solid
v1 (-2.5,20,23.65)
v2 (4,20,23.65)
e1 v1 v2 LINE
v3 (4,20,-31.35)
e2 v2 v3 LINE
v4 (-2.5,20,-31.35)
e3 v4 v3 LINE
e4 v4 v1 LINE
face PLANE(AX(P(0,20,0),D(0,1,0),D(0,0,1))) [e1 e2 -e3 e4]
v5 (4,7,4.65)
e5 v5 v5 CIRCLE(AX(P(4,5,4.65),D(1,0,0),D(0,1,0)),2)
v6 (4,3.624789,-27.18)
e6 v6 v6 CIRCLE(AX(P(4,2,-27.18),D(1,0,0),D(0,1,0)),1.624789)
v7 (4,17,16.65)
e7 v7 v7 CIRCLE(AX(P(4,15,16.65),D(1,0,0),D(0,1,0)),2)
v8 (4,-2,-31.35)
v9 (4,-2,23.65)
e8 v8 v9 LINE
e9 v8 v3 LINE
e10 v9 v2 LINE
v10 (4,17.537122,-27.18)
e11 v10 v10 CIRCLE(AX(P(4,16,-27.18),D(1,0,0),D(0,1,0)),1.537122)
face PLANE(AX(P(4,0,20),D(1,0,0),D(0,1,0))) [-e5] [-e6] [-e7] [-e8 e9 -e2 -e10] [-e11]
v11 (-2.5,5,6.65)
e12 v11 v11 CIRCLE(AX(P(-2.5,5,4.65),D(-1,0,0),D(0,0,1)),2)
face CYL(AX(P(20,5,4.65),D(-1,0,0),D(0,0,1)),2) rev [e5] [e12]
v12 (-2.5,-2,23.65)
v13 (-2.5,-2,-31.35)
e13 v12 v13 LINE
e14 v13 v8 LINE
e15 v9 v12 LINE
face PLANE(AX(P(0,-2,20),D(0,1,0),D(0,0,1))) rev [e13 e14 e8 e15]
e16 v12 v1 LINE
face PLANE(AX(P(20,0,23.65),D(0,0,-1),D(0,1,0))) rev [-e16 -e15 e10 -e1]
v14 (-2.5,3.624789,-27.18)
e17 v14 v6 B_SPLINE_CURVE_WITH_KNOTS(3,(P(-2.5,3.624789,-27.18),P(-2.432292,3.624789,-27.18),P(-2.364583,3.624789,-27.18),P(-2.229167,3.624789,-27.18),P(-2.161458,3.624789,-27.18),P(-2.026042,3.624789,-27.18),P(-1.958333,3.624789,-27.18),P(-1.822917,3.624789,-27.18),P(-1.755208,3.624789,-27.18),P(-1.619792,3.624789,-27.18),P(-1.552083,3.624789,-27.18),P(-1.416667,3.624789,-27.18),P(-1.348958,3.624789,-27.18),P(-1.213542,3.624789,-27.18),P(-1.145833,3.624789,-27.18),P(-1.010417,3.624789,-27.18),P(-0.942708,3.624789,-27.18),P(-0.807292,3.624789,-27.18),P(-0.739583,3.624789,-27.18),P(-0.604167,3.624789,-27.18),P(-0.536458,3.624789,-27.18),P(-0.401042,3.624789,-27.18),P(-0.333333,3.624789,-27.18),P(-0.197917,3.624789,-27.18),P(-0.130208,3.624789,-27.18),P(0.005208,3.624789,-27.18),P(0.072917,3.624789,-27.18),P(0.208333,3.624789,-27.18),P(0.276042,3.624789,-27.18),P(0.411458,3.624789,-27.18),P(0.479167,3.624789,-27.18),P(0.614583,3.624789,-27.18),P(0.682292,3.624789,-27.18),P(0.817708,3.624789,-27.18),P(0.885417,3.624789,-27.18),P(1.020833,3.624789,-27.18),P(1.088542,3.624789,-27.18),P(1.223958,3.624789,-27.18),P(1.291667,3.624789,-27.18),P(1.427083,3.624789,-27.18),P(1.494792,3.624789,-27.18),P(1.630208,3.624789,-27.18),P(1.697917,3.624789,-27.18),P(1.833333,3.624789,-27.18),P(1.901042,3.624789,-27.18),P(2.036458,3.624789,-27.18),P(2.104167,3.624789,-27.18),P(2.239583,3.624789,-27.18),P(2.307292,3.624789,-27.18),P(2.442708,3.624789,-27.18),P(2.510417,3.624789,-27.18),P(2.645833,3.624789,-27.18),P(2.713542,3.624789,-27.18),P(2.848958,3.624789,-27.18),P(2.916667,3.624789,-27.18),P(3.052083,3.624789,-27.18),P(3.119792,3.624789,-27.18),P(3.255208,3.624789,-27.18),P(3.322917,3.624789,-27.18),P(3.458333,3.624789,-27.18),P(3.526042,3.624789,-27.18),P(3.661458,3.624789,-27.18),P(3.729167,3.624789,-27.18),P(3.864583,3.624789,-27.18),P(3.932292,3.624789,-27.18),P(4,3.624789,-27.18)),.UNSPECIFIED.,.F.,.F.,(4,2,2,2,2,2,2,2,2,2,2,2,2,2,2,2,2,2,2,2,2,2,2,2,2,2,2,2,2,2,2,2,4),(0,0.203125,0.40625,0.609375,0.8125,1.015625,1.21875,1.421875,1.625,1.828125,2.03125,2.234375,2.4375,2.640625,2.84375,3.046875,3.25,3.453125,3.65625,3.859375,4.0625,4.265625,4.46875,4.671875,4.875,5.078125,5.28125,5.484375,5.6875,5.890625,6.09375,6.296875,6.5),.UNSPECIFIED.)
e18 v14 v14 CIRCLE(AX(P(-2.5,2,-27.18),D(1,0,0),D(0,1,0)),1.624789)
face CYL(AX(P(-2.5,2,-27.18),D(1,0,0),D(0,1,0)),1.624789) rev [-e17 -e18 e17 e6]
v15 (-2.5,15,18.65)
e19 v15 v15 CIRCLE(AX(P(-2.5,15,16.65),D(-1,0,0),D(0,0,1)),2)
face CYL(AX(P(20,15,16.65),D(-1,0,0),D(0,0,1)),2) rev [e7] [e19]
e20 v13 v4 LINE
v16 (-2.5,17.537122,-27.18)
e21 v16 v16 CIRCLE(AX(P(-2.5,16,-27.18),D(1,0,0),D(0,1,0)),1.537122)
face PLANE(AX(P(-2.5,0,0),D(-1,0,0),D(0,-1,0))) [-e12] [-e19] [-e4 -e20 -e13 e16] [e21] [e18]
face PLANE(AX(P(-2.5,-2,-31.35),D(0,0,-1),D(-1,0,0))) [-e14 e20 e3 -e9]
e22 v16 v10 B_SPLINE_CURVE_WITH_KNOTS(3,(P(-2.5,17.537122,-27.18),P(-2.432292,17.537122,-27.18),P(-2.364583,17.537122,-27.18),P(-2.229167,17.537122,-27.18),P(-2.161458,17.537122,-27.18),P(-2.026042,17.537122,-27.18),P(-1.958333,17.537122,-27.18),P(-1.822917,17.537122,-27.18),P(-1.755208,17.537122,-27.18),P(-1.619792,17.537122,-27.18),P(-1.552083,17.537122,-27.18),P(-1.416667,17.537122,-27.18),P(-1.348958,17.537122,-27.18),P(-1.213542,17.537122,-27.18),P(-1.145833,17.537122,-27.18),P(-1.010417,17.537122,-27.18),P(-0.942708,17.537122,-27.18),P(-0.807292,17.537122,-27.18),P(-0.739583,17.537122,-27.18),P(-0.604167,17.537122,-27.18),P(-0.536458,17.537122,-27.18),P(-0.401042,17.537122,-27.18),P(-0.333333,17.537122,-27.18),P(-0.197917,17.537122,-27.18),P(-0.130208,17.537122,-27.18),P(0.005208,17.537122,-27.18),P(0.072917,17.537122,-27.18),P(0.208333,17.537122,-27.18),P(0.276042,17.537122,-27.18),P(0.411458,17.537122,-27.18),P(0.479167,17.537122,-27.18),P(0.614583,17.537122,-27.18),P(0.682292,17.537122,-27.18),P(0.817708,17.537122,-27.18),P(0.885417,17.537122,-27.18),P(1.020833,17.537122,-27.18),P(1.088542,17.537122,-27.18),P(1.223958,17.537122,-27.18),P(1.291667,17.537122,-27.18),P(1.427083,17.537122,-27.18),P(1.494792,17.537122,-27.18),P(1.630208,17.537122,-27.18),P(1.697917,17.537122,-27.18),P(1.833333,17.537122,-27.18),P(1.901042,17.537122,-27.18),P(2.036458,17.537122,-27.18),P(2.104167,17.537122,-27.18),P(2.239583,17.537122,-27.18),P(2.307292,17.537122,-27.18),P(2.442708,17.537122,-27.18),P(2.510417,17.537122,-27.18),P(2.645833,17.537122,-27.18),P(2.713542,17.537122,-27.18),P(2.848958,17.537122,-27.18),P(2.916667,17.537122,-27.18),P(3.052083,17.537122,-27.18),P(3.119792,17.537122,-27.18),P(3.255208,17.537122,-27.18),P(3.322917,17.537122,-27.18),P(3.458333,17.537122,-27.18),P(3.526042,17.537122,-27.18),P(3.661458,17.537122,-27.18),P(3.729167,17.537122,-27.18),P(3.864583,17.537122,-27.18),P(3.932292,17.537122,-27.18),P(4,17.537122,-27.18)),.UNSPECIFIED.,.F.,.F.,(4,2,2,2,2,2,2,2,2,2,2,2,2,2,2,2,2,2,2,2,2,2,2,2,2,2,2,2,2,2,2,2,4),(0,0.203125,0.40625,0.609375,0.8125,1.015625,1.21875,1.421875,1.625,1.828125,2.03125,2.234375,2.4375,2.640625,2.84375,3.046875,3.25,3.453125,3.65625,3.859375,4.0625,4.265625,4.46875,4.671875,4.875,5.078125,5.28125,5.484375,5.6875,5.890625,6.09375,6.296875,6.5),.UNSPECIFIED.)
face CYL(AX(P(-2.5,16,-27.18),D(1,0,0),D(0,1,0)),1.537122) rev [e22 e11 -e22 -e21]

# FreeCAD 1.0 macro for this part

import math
import FreeCAD as App
import Part
import Sketcher
Q = App.Units.Quantity

doc = App.newDocument("Part")
body = doc.addObject("PartDesign::Body", "Body")

sketch1 = doc.addObject("Sketcher::SketchObject", "Sketch")
body.addObject(sketch1)
sketch1.AttachmentSupport = (doc.XY_Plane, [""])
sketch1.MapMode = "FlatFace"
sketch1.addGeometry(Part.LineSegment(App.Vector(0, 16, 0), App.Vector(0, -2, 0)), False)
sketch1.addGeometry(Part.LineSegment(App.Vector(0, -2, 0), App.Vector(20.2, -2, 0)), False)
sketch1.addGeometry(Part.LineSegment(App.Vector(20.2, -2, 0), App.Vector(20.2, -24, 0)), False)
sketch1.addGeometry(Part.LineSegment(App.Vector(20.2, -24, 0), App.Vector(24.2, -24, 0)), False)
sketch1.addGeometry(Part.LineSegment(App.Vector(24.2, -24, 0), App.Vector(24.2, 2, 0)), False)
sketch1.addGeometry(Part.LineSegment(App.Vector(24.2, 2, 0), App.Vector(4, 2, 0)), False)
sketch1.addGeometry(Part.LineSegment(App.Vector(4, 2, 0), App.Vector(4, 16, 0)), False)
sketch1.addGeometry(Part.LineSegment(App.Vector(4, 16, 0), App.Vector(0, 16, 0)), False)
sketch1.addConstraint(Sketcher.Constraint("Coincident", 0, 2, 1, 1))
sketch1.addConstraint(Sketcher.Constraint("Coincident", 1, 2, 2, 1))
sketch1.addConstraint(Sketcher.Constraint("Coincident", 2, 2, 3, 1))
sketch1.addConstraint(Sketcher.Constraint("Coincident", 3, 2, 4, 1))
sketch1.addConstraint(Sketcher.Constraint("Coincident", 4, 2, 5, 1))
sketch1.addConstraint(Sketcher.Constraint("Coincident", 5, 2, 6, 1))
sketch1.addConstraint(Sketcher.Constraint("Coincident", 6, 2, 7, 1))
sketch1.addConstraint(Sketcher.Constraint("Coincident", 7, 2, 0, 1))
sketch1.addConstraint(Sketcher.Constraint("Vertical", 0))
sketch1.addConstraint(Sketcher.Constraint("Horizontal", 1))
sketch1.addConstraint(Sketcher.Constraint("Vertical", 2))
sketch1.addConstraint(Sketcher.Constraint("Horizontal", 3))
sketch1.addConstraint(Sketcher.Constraint("Vertical", 4))
sketch1.addConstraint(Sketcher.Constraint("Horizontal", 5))
sketch1.addConstraint(Sketcher.Constraint("Vertical", 6))
sketch1.addConstraint(Sketcher.Constraint("Horizontal", 7))
sketch1.addConstraint(Sketcher.Constraint("PointOnObject", 0, 2, -2))
sketch1.addConstraint(Sketcher.Constraint("Equal", 1, 5))
sketch1.addConstraint(Sketcher.Constraint("DistanceX", 3, 1, 3, 2, Q("4 mm")))
sketch1.addConstraint(Sketcher.Constraint("DistanceY", 0, 2, 0, 1, Q("18 mm")))
sketch1.addConstraint(Sketcher.Constraint("DistanceY", 2, 2, 2, 1, Q("22 mm")))
sketch1.addConstraint(Sketcher.Constraint("DistanceY", 4, 1, 4, 2, Q("26 mm")))
sketch1.addConstraint(Sketcher.Constraint("DistanceY", 0, 2, -1, 1, Q("2 mm")))
sketch1.addConstraint(Sketcher.Constraint("DistanceX", 1, 1, 1, 2, Q("20.25 mm")))
pad1 = doc.addObject("PartDesign::Pad", "Pad")
body.addObject(pad1)
pad1.Profile = sketch1
pad1.Length = 20

sketch2 = doc.addObject("Sketcher::SketchObject", "Sketch001")
body.addObject(sketch2)
sketch2.AttachmentSupport = (doc.XY_Plane, [""])
sketch2.MapMode = "FlatFace"
sketch2.addGeometry(Part.LineSegment(App.Vector(4, 16, 0), App.Vector(4, -2, 0)), False)
sketch2.addGeometry(Part.LineSegment(App.Vector(4, -2, 0), App.Vector(0, -2, 0)), False)
sketch2.addGeometry(Part.LineSegment(App.Vector(0, -2, 0), App.Vector(0, 16, 0)), False)
sketch2.addGeometry(Part.LineSegment(App.Vector(0, 16, 0), App.Vector(4, 16, 0)), False)
sketch2.addConstraint(Sketcher.Constraint("Coincident", 0, 2, 1, 1))
sketch2.addConstraint(Sketcher.Constraint("Coincident", 1, 2, 2, 1))
sketch2.addConstraint(Sketcher.Constraint("Coincident", 2, 2, 3, 1))
sketch2.addConstraint(Sketcher.Constraint("Coincident", 3, 2, 0, 1))
sketch2.addConstraint(Sketcher.Constraint("Vertical", 0))
sketch2.addConstraint(Sketcher.Constraint("Horizontal", 1))
sketch2.addConstraint(Sketcher.Constraint("Vertical", 2))
sketch2.addConstraint(Sketcher.Constraint("Horizontal", 3))
sketch2.addConstraint(Sketcher.Constraint("PointOnObject", 1, 2, -2))
sketch2.addConstraint(Sketcher.Constraint("DistanceX", 1, 2, 1, 1, Q("4 mm")))
sketch2.addConstraint(Sketcher.Constraint("DistanceY", 0, 2, 0, 1, Q("18 mm")))
sketch2.addConstraint(Sketcher.Constraint("DistanceY", 0, 2, -1, 1, Q("2 mm")))
pad2 = doc.addObject("PartDesign::Pad", "Pad001")
body.addObject(pad2)
pad2.Profile = sketch2
pad2.Length = 20
pad2.Reversed = True

sketch3 = doc.addObject("Sketcher::SketchObject", "Sketch002")
body.addObject(sketch3)
sketch3.AttachmentSupport = (doc.XY_Plane, [""])
sketch3.MapMode = "FlatFace"
sketch3.AttachmentOffset = App.Placement(App.Vector(0, 0, 20), App.Rotation())
sketch3.addGeometry(Part.LineSegment(App.Vector(0, 16, 0), App.Vector(0, -2, 0)), False)
sketch3.addGeometry(Part.LineSegment(App.Vector(0, -2, 0), App.Vector(4, -2, 0)), False)
sketch3.addGeometry(Part.LineSegment(App.Vector(4, -2, 0), App.Vector(4, 16, 0)), False)
sketch3.addGeometry(Part.LineSegment(App.Vector(4, 16, 0), App.Vector(0, 16, 0)), False)
sketch3.addConstraint(Sketcher.Constraint("Coincident", 0, 2, 1, 1))
sketch3.addConstraint(Sketcher.Constraint("Coincident", 1, 2, 2, 1))
sketch3.addConstraint(Sketcher.Constraint("Coincident", 2, 2, 3, 1))
sketch3.addConstraint(Sketcher.Constraint("Coincident", 3, 2, 0, 1))
sketch3.addConstraint(Sketcher.Constraint("Vertical", 0))
sketch3.addConstraint(Sketcher.Constraint("Horizontal", 1))
sketch3.addConstraint(Sketcher.Constraint("Vertical", 2))
sketch3.addConstraint(Sketcher.Constraint("Horizontal", 3))
sketch3.addConstraint(Sketcher.Constraint("PointOnObject", 0, 2, -2))
sketch3.addConstraint(Sketcher.Constraint("DistanceX", 1, 1, 1, 2, Q("4 mm")))
sketch3.addConstraint(Sketcher.Constraint("DistanceY", 0, 2, 0, 1, Q("18 mm")))
sketch3.addConstraint(Sketcher.Constraint("DistanceY", 0, 2, -1, 1, Q("2 mm")))
pad3 = doc.addObject("PartDesign::Pad", "Pad002")
body.addObject(pad3)
pad3.Profile = sketch3
pad3.Length = 20

sketch4 = doc.addObject("Sketcher::SketchObject", "Sketch003")
body.addObject(sketch4)
sketch4.AttachmentSupport = (doc.YZ_Plane, [""])
sketch4.MapMode = "FlatFace"
sketch4.addGeometry(Part.LineSegment(App.Vector(16, -20, 0), App.Vector(-2, -20, 0)), False)
sketch4.addGeometry(Part.LineSegment(App.Vector(-2, -20, 0), App.Vector(-2, -2.4, 0)), False)
sketch4.addGeometry(Part.LineSegment(App.Vector(-2, -2.4, 0), App.Vector(16, -2.4, 0)), False)
sketch4.addGeometry(Part.LineSegment(App.Vector(16, -2.4, 0), App.Vector(16, -20, 0)), False)
sketch4.addGeometry(Part.LineSegment(App.Vector(16, 23.6, 0), App.Vector(-2, 23.6, 0)), False)
sketch4.addGeometry(Part.LineSegment(App.Vector(-2, 23.6, 0), App.Vector(-2, 40, 0)), False)
sketch4.addGeometry(Part.LineSegment(App.Vector(-2, 40, 0), App.Vector(16, 40, 0)), False)
sketch4.addGeometry(Part.LineSegment(App.Vector(16, 40, 0), App.Vector(16, 23.6, 0)), False)
sketch4.addGeometry(Part.Circle(App.Vector(15, 16.6, 0), App.Vector(0, 0, 1), 2), False)
sketch4.addGeometry(Part.Circle(App.Vector(5, 4.7, 0), App.Vector(0, 0, 1), 2), False)
sketch4.addConstraint(Sketcher.Constraint("Coincident", 0, 2, 1, 1))
sketch4.addConstraint(Sketcher.Constraint("Coincident", 1, 2, 2, 1))
sketch4.addConstraint(Sketcher.Constraint("Coincident", 2, 2, 3, 1))
sketch4.addConstraint(Sketcher.Constraint("Coincident", 3, 2, 0, 1))
sketch4.addConstraint(Sketcher.Constraint("Coincident", 4, 2, 5, 1))
sketch4.addConstraint(Sketcher.Constraint("Coincident", 5, 2, 6, 1))
sketch4.addConstraint(Sketcher.Constraint("Coincident", 6, 2, 7, 1))
sketch4.addConstraint(Sketcher.Constraint("Coincident", 7, 2, 4, 1))
sketch4.addConstraint(Sketcher.Constraint("Horizontal", 0))
sketch4.addConstraint(Sketcher.Constraint("Vertical", 1))
sketch4.addConstraint(Sketcher.Constraint("Horizontal", 2))
sketch4.addConstraint(Sketcher.Constraint("Vertical", 3))
sketch4.addConstraint(Sketcher.Constraint("Horizontal", 4))
sketch4.addConstraint(Sketcher.Constraint("Vertical", 5))
sketch4.addConstraint(Sketcher.Constraint("Horizontal", 6))
sketch4.addConstraint(Sketcher.Constraint("Vertical", 7))
sketch4.addConstraint(Sketcher.Constraint("Equal", 8, 9))
sketch4.addConstraint(Sketcher.Constraint("Vertical", 1, 2, 4, 2))
sketch4.addConstraint(Sketcher.Constraint("Vertical", 3, 2, 6, 2))
sketch4.addConstraint(Sketcher.Constraint("Diameter", 8, Q("4 mm")))
sketch4.addConstraint(Sketcher.Constraint("DistanceX", 0, 2, 0, 1, Q("18 mm")))
sketch4.addConstraint(Sketcher.Constraint("DistanceX", -1, 1, 8, 3, Q("15 mm")))
sketch4.addConstraint(Sketcher.Constraint("DistanceX", -1, 1, 9, 3, Q("5 mm")))
sketch4.addConstraint(Sketcher.Constraint("DistanceX", 0, 2, -1, 1, Q("2 mm")))
sketch4.addConstraint(Sketcher.Constraint("DistanceY", 0, 2, -1, 1, Q("20 mm")))
sketch4.addConstraint(Sketcher.Constraint("DistanceY", -1, 1, 5, 2, Q("40 mm")))
sketch4.addConstraint(Sketcher.Constraint("DistanceY", 9, 3, 8, 3, Q("12 mm")))
sketch4.addConstraint(Sketcher.Constraint("DistanceY", 1, 2, 9, 3, Q("7 mm")))
sketch4.addConstraint(Sketcher.Constraint("DistanceY", 8, 3, 4, 2, Q("7 mm")))
sketch4.addConstraint(Sketcher.Constraint("DistanceY", 1, 1, 1, 2, Q("17.65 mm")))
pocket1 = doc.addObject("PartDesign::Pocket", "Pocket")
body.addObject(pocket1)
pocket1.Profile = sketch4
pocket1.Length = 20
pocket1.Reversed = True

sketch5 = doc.addObject("Sketcher::SketchObject", "Sketch004")
body.addObject(sketch5)
sketch5.AttachmentSupport = (doc.XZ_Plane, [""])
sketch5.MapMode = "FlatFace"
sketch5.AttachmentOffset = App.Placement(App.Vector(0, 0, -16), App.Rotation())
sketch5.addGeometry(Part.LineSegment(App.Vector(0, -2.4, 0), App.Vector(0, 23.6, 0)), False)
sketch5.addGeometry(Part.LineSegment(App.Vector(0, 23.6, 0), App.Vector(4, 23.6, 0)), False)
sketch5.addGeometry(Part.LineSegment(App.Vector(4, 23.6, 0), App.Vector(4, -2.4, 0)), False)
sketch5.addGeometry(Part.LineSegment(App.Vector(4, -2.4, 0), App.Vector(0, -2.4, 0)), False)
sketch5.addConstraint(Sketcher.Constraint("Coincident", 0, 2, 1, 1))
sketch5.addConstraint(Sketcher.Constraint("Coincident", 1, 2, 2, 1))
sketch5.addConstraint(Sketcher.Constraint("Coincident", 2, 2, 3, 1))
sketch5.addConstraint(Sketcher.Constraint("Coincident", 3, 2, 0, 1))
sketch5.addConstraint(Sketcher.Constraint("Vertical", 0))
sketch5.addConstraint(Sketcher.Constraint("Horizontal", 1))
sketch5.addConstraint(Sketcher.Constraint("Vertical", 2))
sketch5.addConstraint(Sketcher.Constraint("Horizontal", 3))
sketch5.addConstraint(Sketcher.Constraint("PointOnObject", 0, 2, -2))
sketch5.addConstraint(Sketcher.Constraint("DistanceX", 1, 1, 1, 2, Q("4 mm")))
sketch5.addConstraint(Sketcher.Constraint("DistanceY", 0, 1, 0, 2, Q("26 mm")))
sketch5.addConstraint(Sketcher.Constraint("DistanceY", -1, 1, 0, 2, Q("23.65 mm")))
pad4 = doc.addObject("PartDesign::Pad", "Pad003")
body.addObject(pad4)
pad4.Profile = sketch5
pad4.Length = 4
pad4.Reversed = True

sketch6 = doc.addObject("Sketcher::SketchObject", "Sketch005")
body.addObject(sketch6)
sketch6.AttachmentSupport = (doc.YZ_Plane, [""])
sketch6.MapMode = "FlatFace"
sketch6.addGeometry(Part.Circle(App.Vector(15, 16.6, 0), App.Vector(0, 0, 1), 2), False)
sketch6.addConstraint(Sketcher.Constraint("Diameter", 0, Q("4 mm")))
sketch6.addConstraint(Sketcher.Constraint("DistanceX", -1, 1, 0, 3, Q("15 mm")))
sketch6.addConstraint(Sketcher.Constraint("DistanceY", -1, 1, 0, 3, Q("16.65 mm")))
pocket2 = doc.addObject("PartDesign::Pocket", "Pocket001")
body.addObject(pocket2)
pocket2.Profile = sketch6
pocket2.Length = 4
pocket2.Reversed = True

sketch7 = doc.addObject("Sketcher::SketchObject", "Sketch006")
body.addObject(sketch7)
sketch7.AttachmentSupport = (doc.YZ_Plane, [""])
sketch7.MapMode = "FlatFace"
sketch7.AttachmentOffset = App.Placement(App.Vector(0, 0, 20.25), App.Rotation())
sketch7.addGeometry(Part.Circle(App.Vector(-7, 20, 0), App.Vector(0, 0, 1), 2), False)
sketch7.addGeometry(Part.Circle(App.Vector(-20, 20, 0), App.Vector(0, 0, 1), 2), False)
sketch7.addConstraint(Sketcher.Constraint("Equal", 0, 1))
sketch7.addConstraint(Sketcher.Constraint("Horizontal", 0, 3, 1, 3))
sketch7.addConstraint(Sketcher.Constraint("Diameter", 0, Q("4 mm")))
sketch7.addConstraint(Sketcher.Constraint("DistanceX", 0, 3, -1, 1, Q("7 mm")))
sketch7.addConstraint(Sketcher.Constraint("DistanceY", -1, 1, 0, 3, Q("20 mm")))
sketch7.addConstraint(Sketcher.Constraint("DistanceX", 1, 3, -1, 1, Q("20 mm")))
pocket3 = doc.addObject("PartDesign::Pocket", "Pocket002")
body.addObject(pocket3)
pocket3.Profile = sketch7
pocket3.Length = 4
pocket3.Reversed = True

sketch8 = doc.addObject("Sketcher::SketchObject", "Sketch007")
body.addObject(sketch8)
sketch8.AttachmentSupport = (doc.XY_Plane, [""])
sketch8.MapMode = "FlatFace"
sketch8.AttachmentOffset = App.Placement(App.Vector(0, 0, 20), App.Rotation())
sketch8.addGeometry(Part.LineSegment(App.Vector(20.2, 2, 0), App.Vector(20.2, -24, 0)), False)
sketch8.addGeometry(Part.LineSegment(App.Vector(20.2, -24, 0), App.Vector(24.2, -24, 0)), False)
sketch8.addGeometry(Part.LineSegment(App.Vector(24.2, -24, 0), App.Vector(24.2, 2, 0)), False)
sketch8.addGeometry(Part.LineSegment(App.Vector(24.2, 2, 0), App.Vector(20.2, 2, 0)), False)
sketch8.addConstraint(Sketcher.Constraint("Coincident", 0, 2, 1, 1))
sketch8.addConstraint(Sketcher.Constraint("Coincident", 1, 2, 2, 1))
sketch8.addConstraint(Sketcher.Constraint("Coincident", 2, 2, 3, 1))
sketch8.addConstraint(Sketcher.Constraint("Coincident", 3, 2, 0, 1))
sketch8.addConstraint(Sketcher.Constraint("Vertical", 0))
sketch8.addConstraint(Sketcher.Constraint("Horizontal", 1))
sketch8.addConstraint(Sketcher.Constraint("Vertical", 2))
sketch8.addConstraint(Sketcher.Constraint("Horizontal", 3))
sketch8.addConstraint(Sketcher.Constraint("DistanceX", 1, 1, 1, 2, Q("4 mm")))
sketch8.addConstraint(Sketcher.Constraint("DistanceY", 0, 2, 0, 1, Q("26 mm")))
sketch8.addConstraint(Sketcher.Constraint("DistanceY", 0, 2, -1, 1, Q("24 mm")))
sketch8.addConstraint(Sketcher.Constraint("DistanceX", -1, 1, 0, 2, Q("20.25 mm")))
pad5 = doc.addObject("PartDesign::Pad", "Pad004")
body.addObject(pad5)
pad5.Profile = sketch8
pad5.Length = 8

sketch9 = doc.addObject("Sketcher::SketchObject", "Sketch008")
body.addObject(sketch9)
sketch9.AttachmentSupport = (doc.YZ_Plane, [""])
sketch9.MapMode = "FlatFace"
sketch9.AttachmentOffset = App.Placement(App.Vector(0, 0, 20.25), App.Rotation())
sketch9.addGeometry(Part.ArcOfCircle(Part.Circle(App.Vector(-7, 20, 0), App.Vector(0, 0, 1), 2), math.radians(90), math.radians(180)), False)
sketch9.addGeometry(Part.ArcOfCircle(Part.Circle(App.Vector(-7, 20, 0), App.Vector(0, 0, 1), 2), math.radians(0), math.radians(90)), False)
sketch9.addGeometry(Part.ArcOfCircle(Part.Circle(App.Vector(-7, 20, 0), App.Vector(0, 0, 1), 2), math.radians(180), math.radians(360)), False)
sketch9.addGeometry(Part.ArcOfCircle(Part.Circle(App.Vector(-20, 20, 0), App.Vector(0, 0, 1), 2), math.radians(90), math.radians(180)), False)
sketch9.addGeometry(Part.ArcOfCircle(Part.Circle(App.Vector(-20, 20, 0), App.Vector(0, 0, 1), 2), math.radians(0), math.radians(90)), False)
sketch9.addGeometry(Part.ArcOfCircle(Part.Circle(App.Vector(-20, 20, 0), App.Vector(0, 0, 1), 2), math.radians(180), math.radians(360)), False)
sketch9.addGeometry(Part.LineSegment(App.Vector(-24, 14, 0), App.Vector(-2, 0, 0)), False)
sketch9.addGeometry(Part.LineSegment(App.Vector(-2, 0, 0), App.Vector(-24, 0, 0)), False)
sketch9.addGeometry(Part.LineSegment(App.Vector(-24, 0, 0), App.Vector(-24, 14, 0)), False)
sketch9.addConstraint(Sketcher.Constraint("Tangent", 0, 1, 1, 2))
sketch9.addConstraint(Sketcher.Constraint("Tangent", 1, 1, 2, 2))
sketch9.addConstraint(Sketcher.Constraint("Tangent", 2, 1, 0, 2))
sketch9.addConstraint(Sketcher.Constraint("Tangent", 3, 1, 4, 2))
sketch9.addConstraint(Sketcher.Constraint("Tangent", 4, 1, 5, 2))
sketch9.addConstraint(Sketcher.Constraint("Tangent", 5, 1, 3, 2))
sketch9.addConstraint(Sketcher.Constraint("Coincident", 6, 2, 7, 1))
sketch9.addConstraint(Sketcher.Constraint("Coincident", 7, 2, 8, 1))
sketch9.addConstraint(Sketcher.Constraint("Coincident", 8, 2, 6, 1))
sketch9.addConstraint(Sketcher.Constraint("Horizontal", 7))
sketch9.addConstraint(Sketcher.Constraint("Vertical", 8))
sketch9.addConstraint(Sketcher.Constraint("Equal", 2, 3))
sketch9.addConstraint(Sketcher.Constraint("PointOnObject", 6, 2, -1))
sketch9.addConstraint(Sketcher.Constraint("Horizontal", 2, 3, 3, 3))
sketch9.addConstraint(Sketcher.Constraint("Horizontal", 5, 3, 1, 1))
sketch9.addConstraint(Sketcher.Constraint("Horizontal", 1, 1, 2, 1))
sketch9.addConstraint(Sketcher.Constraint("Horizontal", 2, 1, 4, 1))
sketch9.addConstraint(Sketcher.Constraint("Horizontal", 4, 1, 5, 1))
sketch9.addConstraint(Sketcher.Constraint("Vertical", 2, 3, 0, 1))
sketch9.addConstraint(Sketcher.Constraint("Vertical", 5, 3, 3, 1))
sketch9.addConstraint(Sketcher.Constraint("Radius", 0, Q("2 mm")))
sketch9.addConstraint(Sketcher.Constraint("DistanceX", 7, 2, 7, 1, Q("22 mm")))
sketch9.addConstraint(Sketcher.Constraint("DistanceY", 8, 1, 8, 2, Q("14 mm")))
sketch9.addConstraint(Sketcher.Constraint("DistanceX", 0, 3, -1, 1, Q("7 mm")))
sketch9.addConstraint(Sketcher.Constraint("DistanceY", -1, 1, 0, 3, Q("20 mm")))
sketch9.addConstraint(Sketcher.Constraint("DistanceX", 3, 3, -1, 1, Q("20 mm")))
sketch9.addConstraint(Sketcher.Constraint("DistanceX", 6, 2, -1, 1, Q("2 mm")))
pocket4 = doc.addObject("PartDesign::Pocket", "Pocket003")
body.addObject(pocket4)
pocket4.Profile = sketch9
pocket4.Length = 8
pocket4.Reversed = True

sketch10 = doc.addObject("Sketcher::SketchObject", "Sketch009")
body.addObject(sketch10)
sketch10.AttachmentSupport = (doc.XZ_Plane, [""])
sketch10.MapMode = "FlatFace"
sketch10.AttachmentOffset = App.Placement(App.Vector(0, 0, -2), App.Rotation())
sketch10.addGeometry(Part.LineSegment(App.Vector(4, 0, 0), App.Vector(4, 28, 0)), False)
sketch10.addGeometry(Part.LineSegment(App.Vector(4, 28, 0), App.Vector(24, 28, 0)), False)
sketch10.addGeometry(Part.LineSegment(App.Vector(24, 28, 0), App.Vector(24, 0, 0)), False)
sketch10.addGeometry(Part.LineSegment(App.Vector(24, 0, 0), App.Vector(4, 0, 0)), False)
sketch10.addConstraint(Sketcher.Constraint("Coincident", 0, 2, 1, 1))
sketch10.addConstraint(Sketcher.Constraint("Coincident", 1, 2, 2, 1))
sketch10.addConstraint(Sketcher.Constraint("Coincident", 2, 2, 3, 1))
sketch10.addConstraint(Sketcher.Constraint("Coincident", 3, 2, 0, 1))
sketch10.addConstraint(Sketcher.Constraint("Vertical", 0))
sketch10.addConstraint(Sketcher.Constraint("Horizontal", 1))
sketch10.addConstraint(Sketcher.Constraint("Vertical", 2))
sketch10.addConstraint(Sketcher.Constraint("Horizontal", 3))
sketch10.addConstraint(Sketcher.Constraint("PointOnObject", 2, 2, -1))
sketch10.addConstraint(Sketcher.Constraint("DistanceY", 0, 1, 0, 2, Q("28 mm")))
sketch10.addConstraint(Sketcher.Constraint("DistanceX", -1, 1, 0, 2, Q("4 mm")))
sketch10.addConstraint(Sketcher.Constraint("DistanceX", 1, 1, 1, 2, Q("20.25 mm")))
pocket5 = doc.addObject("PartDesign::Pocket", "Pocket004")
body.addObject(pocket5)
pocket5.Profile = sketch10
pocket5.Type = "ThroughAll"
pocket5.Reversed = True

sketch11 = doc.addObject("Sketcher::SketchObject", "Sketch010")
body.addObject(sketch11)
sketch11.AttachmentSupport = (doc.YZ_Plane, [""])
sketch11.MapMode = "FlatFace"
sketch11.AttachmentOffset = App.Placement(App.Vector(0, 0, 4), App.Rotation())
sketch11.addGeometry(Part.LineSegment(App.Vector(20, -2.4, 0), App.Vector(-2, -2.4, 0)), False)
sketch11.addGeometry(Part.LineSegment(App.Vector(-2, -2.4, 0), App.Vector(-2, -31.4, 0)), False)
sketch11.addGeometry(Part.LineSegment(App.Vector(-2, -31.4, 0), App.Vector(20, -31.4, 0)), False)
sketch11.addGeometry(Part.LineSegment(App.Vector(20, -31.4, 0), App.Vector(20, -2.4, 0)), False)
sketch11.addGeometry(Part.Circle(App.Vector(2, -27.2, 0), App.Vector(0, 0, 1), 1.6), False)
sketch11.addGeometry(Part.Circle(App.Vector(16, -27.2, 0), App.Vector(0, 0, 1), 1.5), False)
sketch11.addConstraint(Sketcher.Constraint("Coincident", 0, 2, 1, 1))
sketch11.addConstraint(Sketcher.Constraint("Coincident", 1, 2, 2, 1))
sketch11.addConstraint(Sketcher.Constraint("Coincident", 2, 2, 3, 1))
sketch11.addConstraint(Sketcher.Constraint("Coincident", 3, 2, 0, 1))
sketch11.addConstraint(Sketcher.Constraint("Horizontal", 0))
sketch11.addConstraint(Sketcher.Constraint("Vertical", 1))
sketch11.addConstraint(Sketcher.Constraint("Horizontal", 2))
sketch11.addConstraint(Sketcher.Constraint("Vertical", 3))
sketch11.addConstraint(Sketcher.Constraint("Horizontal", 4, 3, 5, 3))
sketch11.addConstraint(Sketcher.Constraint("DistanceX", 0, 2, 0, 1, Q("22 mm")))
sketch11.addConstraint(Sketcher.Constraint("DistanceY", 1, 2, 1, 1, Q("29 mm")))
sketch11.addConstraint(Sketcher.Constraint("DistanceX", -1, 1, 4, 3, Q("2 mm")))
sketch11.addConstraint(Sketcher.Constraint("DistanceX", -1, 1, 5, 3, Q("16 mm")))
sketch11.addConstraint(Sketcher.Constraint("DistanceX", 0, 2, -1, 1, Q("2 mm")))
sketch11.addConstraint(Sketcher.Constraint("DistanceY", 4, 3, -1, 1, Q("27.18 mm")))
sketch11.addConstraint(Sketcher.Constraint("DistanceY", 0, 2, -1, 1, Q("2.35 mm")))
sketch11.addConstraint(Sketcher.Constraint("Diameter", 4, Q("3.249577 mm")))
sketch11.addConstraint(Sketcher.Constraint("Diameter", 5, Q("3.074244 mm")))
pad6 = doc.addObject("PartDesign::Pad", "Pad005")
body.addObject(pad6)
pad6.Profile = sketch11
pad6.Length = 6.5
pad6.Reversed = True

sketch12 = doc.addObject("Sketcher::SketchObject", "Sketch011")
body.addObject(sketch12)
sketch12.AttachmentSupport = (doc.YZ_Plane, [""])
sketch12.MapMode = "FlatFace"
sketch12.AttachmentOffset = App.Placement(App.Vector(0, 0, -2.5), App.Rotation())
sketch12.addGeometry(Part.LineSegment(App.Vector(20, -2.4, 0), App.Vector(-2, -2.4, 0)), False)
sketch12.addGeometry(Part.LineSegment(App.Vector(-2, -2.4, 0), App.Vector(-2, 23.6, 0)), False)
sketch12.addGeometry(Part.LineSegment(App.Vector(-2, 23.6, 0), App.Vector(20, 23.6, 0)), False)
sketch12.addGeometry(Part.LineSegment(App.Vector(20, 23.6, 0), App.Vector(20, -2.4, 0)), False)
sketch12.addGeometry(Part.Circle(App.Vector(5, 4.7, 0), App.Vector(0, 0, 1), 2), False)
sketch12.addGeometry(Part.Circle(App.Vector(15, 16.6, 0), App.Vector(0, 0, 1), 2), False)
sketch12.addConstraint(Sketcher.Constraint("Coincident", 0, 2, 1, 1))
sketch12.addConstraint(Sketcher.Constraint("Coincident", 1, 2, 2, 1))
sketch12.addConstraint(Sketcher.Constraint("Coincident", 2, 2, 3, 1))
sketch12.addConstraint(Sketcher.Constraint("Coincident", 3, 2, 0, 1))
sketch12.addConstraint(Sketcher.Constraint("Horizontal", 0))
sketch12.addConstraint(Sketcher.Constraint("Vertical", 1))
sketch12.addConstraint(Sketcher.Constraint("Horizontal", 2))
sketch12.addConstraint(Sketcher.Constraint("Vertical", 3))
sketch12.addConstraint(Sketcher.Constraint("Equal", 4, 5))
sketch12.addConstraint(Sketcher.Constraint("Diameter", 4, Q("4 mm")))
sketch12.addConstraint(Sketcher.Constraint("DistanceX", 0, 2, 0, 1, Q("22 mm")))
sketch12.addConstraint(Sketcher.Constraint("DistanceY", 1, 1, 1, 2, Q("26 mm")))
sketch12.addConstraint(Sketcher.Constraint("DistanceX", -1, 1, 4, 3, Q("5 mm")))
sketch12.addConstraint(Sketcher.Constraint("DistanceX", -1, 1, 5, 3, Q("15 mm")))
sketch12.addConstraint(Sketcher.Constraint("DistanceX", 0, 2, -1, 1, Q("2 mm")))
sketch12.addConstraint(Sketcher.Constraint("DistanceY", 4, 3, 5, 3, Q("12 mm")))
sketch12.addConstraint(Sketcher.Constraint("DistanceY", 0, 2, 4, 3, Q("7 mm")))
sketch12.addConstraint(Sketcher.Constraint("DistanceY", -1, 1, 4, 3, Q("4.65 mm")))
pad7 = doc.addObject("PartDesign::Pad", "Pad006")
body.addObject(pad7)
pad7.Profile = sketch12
pad7.Length = 2.5

doc.recompute()
